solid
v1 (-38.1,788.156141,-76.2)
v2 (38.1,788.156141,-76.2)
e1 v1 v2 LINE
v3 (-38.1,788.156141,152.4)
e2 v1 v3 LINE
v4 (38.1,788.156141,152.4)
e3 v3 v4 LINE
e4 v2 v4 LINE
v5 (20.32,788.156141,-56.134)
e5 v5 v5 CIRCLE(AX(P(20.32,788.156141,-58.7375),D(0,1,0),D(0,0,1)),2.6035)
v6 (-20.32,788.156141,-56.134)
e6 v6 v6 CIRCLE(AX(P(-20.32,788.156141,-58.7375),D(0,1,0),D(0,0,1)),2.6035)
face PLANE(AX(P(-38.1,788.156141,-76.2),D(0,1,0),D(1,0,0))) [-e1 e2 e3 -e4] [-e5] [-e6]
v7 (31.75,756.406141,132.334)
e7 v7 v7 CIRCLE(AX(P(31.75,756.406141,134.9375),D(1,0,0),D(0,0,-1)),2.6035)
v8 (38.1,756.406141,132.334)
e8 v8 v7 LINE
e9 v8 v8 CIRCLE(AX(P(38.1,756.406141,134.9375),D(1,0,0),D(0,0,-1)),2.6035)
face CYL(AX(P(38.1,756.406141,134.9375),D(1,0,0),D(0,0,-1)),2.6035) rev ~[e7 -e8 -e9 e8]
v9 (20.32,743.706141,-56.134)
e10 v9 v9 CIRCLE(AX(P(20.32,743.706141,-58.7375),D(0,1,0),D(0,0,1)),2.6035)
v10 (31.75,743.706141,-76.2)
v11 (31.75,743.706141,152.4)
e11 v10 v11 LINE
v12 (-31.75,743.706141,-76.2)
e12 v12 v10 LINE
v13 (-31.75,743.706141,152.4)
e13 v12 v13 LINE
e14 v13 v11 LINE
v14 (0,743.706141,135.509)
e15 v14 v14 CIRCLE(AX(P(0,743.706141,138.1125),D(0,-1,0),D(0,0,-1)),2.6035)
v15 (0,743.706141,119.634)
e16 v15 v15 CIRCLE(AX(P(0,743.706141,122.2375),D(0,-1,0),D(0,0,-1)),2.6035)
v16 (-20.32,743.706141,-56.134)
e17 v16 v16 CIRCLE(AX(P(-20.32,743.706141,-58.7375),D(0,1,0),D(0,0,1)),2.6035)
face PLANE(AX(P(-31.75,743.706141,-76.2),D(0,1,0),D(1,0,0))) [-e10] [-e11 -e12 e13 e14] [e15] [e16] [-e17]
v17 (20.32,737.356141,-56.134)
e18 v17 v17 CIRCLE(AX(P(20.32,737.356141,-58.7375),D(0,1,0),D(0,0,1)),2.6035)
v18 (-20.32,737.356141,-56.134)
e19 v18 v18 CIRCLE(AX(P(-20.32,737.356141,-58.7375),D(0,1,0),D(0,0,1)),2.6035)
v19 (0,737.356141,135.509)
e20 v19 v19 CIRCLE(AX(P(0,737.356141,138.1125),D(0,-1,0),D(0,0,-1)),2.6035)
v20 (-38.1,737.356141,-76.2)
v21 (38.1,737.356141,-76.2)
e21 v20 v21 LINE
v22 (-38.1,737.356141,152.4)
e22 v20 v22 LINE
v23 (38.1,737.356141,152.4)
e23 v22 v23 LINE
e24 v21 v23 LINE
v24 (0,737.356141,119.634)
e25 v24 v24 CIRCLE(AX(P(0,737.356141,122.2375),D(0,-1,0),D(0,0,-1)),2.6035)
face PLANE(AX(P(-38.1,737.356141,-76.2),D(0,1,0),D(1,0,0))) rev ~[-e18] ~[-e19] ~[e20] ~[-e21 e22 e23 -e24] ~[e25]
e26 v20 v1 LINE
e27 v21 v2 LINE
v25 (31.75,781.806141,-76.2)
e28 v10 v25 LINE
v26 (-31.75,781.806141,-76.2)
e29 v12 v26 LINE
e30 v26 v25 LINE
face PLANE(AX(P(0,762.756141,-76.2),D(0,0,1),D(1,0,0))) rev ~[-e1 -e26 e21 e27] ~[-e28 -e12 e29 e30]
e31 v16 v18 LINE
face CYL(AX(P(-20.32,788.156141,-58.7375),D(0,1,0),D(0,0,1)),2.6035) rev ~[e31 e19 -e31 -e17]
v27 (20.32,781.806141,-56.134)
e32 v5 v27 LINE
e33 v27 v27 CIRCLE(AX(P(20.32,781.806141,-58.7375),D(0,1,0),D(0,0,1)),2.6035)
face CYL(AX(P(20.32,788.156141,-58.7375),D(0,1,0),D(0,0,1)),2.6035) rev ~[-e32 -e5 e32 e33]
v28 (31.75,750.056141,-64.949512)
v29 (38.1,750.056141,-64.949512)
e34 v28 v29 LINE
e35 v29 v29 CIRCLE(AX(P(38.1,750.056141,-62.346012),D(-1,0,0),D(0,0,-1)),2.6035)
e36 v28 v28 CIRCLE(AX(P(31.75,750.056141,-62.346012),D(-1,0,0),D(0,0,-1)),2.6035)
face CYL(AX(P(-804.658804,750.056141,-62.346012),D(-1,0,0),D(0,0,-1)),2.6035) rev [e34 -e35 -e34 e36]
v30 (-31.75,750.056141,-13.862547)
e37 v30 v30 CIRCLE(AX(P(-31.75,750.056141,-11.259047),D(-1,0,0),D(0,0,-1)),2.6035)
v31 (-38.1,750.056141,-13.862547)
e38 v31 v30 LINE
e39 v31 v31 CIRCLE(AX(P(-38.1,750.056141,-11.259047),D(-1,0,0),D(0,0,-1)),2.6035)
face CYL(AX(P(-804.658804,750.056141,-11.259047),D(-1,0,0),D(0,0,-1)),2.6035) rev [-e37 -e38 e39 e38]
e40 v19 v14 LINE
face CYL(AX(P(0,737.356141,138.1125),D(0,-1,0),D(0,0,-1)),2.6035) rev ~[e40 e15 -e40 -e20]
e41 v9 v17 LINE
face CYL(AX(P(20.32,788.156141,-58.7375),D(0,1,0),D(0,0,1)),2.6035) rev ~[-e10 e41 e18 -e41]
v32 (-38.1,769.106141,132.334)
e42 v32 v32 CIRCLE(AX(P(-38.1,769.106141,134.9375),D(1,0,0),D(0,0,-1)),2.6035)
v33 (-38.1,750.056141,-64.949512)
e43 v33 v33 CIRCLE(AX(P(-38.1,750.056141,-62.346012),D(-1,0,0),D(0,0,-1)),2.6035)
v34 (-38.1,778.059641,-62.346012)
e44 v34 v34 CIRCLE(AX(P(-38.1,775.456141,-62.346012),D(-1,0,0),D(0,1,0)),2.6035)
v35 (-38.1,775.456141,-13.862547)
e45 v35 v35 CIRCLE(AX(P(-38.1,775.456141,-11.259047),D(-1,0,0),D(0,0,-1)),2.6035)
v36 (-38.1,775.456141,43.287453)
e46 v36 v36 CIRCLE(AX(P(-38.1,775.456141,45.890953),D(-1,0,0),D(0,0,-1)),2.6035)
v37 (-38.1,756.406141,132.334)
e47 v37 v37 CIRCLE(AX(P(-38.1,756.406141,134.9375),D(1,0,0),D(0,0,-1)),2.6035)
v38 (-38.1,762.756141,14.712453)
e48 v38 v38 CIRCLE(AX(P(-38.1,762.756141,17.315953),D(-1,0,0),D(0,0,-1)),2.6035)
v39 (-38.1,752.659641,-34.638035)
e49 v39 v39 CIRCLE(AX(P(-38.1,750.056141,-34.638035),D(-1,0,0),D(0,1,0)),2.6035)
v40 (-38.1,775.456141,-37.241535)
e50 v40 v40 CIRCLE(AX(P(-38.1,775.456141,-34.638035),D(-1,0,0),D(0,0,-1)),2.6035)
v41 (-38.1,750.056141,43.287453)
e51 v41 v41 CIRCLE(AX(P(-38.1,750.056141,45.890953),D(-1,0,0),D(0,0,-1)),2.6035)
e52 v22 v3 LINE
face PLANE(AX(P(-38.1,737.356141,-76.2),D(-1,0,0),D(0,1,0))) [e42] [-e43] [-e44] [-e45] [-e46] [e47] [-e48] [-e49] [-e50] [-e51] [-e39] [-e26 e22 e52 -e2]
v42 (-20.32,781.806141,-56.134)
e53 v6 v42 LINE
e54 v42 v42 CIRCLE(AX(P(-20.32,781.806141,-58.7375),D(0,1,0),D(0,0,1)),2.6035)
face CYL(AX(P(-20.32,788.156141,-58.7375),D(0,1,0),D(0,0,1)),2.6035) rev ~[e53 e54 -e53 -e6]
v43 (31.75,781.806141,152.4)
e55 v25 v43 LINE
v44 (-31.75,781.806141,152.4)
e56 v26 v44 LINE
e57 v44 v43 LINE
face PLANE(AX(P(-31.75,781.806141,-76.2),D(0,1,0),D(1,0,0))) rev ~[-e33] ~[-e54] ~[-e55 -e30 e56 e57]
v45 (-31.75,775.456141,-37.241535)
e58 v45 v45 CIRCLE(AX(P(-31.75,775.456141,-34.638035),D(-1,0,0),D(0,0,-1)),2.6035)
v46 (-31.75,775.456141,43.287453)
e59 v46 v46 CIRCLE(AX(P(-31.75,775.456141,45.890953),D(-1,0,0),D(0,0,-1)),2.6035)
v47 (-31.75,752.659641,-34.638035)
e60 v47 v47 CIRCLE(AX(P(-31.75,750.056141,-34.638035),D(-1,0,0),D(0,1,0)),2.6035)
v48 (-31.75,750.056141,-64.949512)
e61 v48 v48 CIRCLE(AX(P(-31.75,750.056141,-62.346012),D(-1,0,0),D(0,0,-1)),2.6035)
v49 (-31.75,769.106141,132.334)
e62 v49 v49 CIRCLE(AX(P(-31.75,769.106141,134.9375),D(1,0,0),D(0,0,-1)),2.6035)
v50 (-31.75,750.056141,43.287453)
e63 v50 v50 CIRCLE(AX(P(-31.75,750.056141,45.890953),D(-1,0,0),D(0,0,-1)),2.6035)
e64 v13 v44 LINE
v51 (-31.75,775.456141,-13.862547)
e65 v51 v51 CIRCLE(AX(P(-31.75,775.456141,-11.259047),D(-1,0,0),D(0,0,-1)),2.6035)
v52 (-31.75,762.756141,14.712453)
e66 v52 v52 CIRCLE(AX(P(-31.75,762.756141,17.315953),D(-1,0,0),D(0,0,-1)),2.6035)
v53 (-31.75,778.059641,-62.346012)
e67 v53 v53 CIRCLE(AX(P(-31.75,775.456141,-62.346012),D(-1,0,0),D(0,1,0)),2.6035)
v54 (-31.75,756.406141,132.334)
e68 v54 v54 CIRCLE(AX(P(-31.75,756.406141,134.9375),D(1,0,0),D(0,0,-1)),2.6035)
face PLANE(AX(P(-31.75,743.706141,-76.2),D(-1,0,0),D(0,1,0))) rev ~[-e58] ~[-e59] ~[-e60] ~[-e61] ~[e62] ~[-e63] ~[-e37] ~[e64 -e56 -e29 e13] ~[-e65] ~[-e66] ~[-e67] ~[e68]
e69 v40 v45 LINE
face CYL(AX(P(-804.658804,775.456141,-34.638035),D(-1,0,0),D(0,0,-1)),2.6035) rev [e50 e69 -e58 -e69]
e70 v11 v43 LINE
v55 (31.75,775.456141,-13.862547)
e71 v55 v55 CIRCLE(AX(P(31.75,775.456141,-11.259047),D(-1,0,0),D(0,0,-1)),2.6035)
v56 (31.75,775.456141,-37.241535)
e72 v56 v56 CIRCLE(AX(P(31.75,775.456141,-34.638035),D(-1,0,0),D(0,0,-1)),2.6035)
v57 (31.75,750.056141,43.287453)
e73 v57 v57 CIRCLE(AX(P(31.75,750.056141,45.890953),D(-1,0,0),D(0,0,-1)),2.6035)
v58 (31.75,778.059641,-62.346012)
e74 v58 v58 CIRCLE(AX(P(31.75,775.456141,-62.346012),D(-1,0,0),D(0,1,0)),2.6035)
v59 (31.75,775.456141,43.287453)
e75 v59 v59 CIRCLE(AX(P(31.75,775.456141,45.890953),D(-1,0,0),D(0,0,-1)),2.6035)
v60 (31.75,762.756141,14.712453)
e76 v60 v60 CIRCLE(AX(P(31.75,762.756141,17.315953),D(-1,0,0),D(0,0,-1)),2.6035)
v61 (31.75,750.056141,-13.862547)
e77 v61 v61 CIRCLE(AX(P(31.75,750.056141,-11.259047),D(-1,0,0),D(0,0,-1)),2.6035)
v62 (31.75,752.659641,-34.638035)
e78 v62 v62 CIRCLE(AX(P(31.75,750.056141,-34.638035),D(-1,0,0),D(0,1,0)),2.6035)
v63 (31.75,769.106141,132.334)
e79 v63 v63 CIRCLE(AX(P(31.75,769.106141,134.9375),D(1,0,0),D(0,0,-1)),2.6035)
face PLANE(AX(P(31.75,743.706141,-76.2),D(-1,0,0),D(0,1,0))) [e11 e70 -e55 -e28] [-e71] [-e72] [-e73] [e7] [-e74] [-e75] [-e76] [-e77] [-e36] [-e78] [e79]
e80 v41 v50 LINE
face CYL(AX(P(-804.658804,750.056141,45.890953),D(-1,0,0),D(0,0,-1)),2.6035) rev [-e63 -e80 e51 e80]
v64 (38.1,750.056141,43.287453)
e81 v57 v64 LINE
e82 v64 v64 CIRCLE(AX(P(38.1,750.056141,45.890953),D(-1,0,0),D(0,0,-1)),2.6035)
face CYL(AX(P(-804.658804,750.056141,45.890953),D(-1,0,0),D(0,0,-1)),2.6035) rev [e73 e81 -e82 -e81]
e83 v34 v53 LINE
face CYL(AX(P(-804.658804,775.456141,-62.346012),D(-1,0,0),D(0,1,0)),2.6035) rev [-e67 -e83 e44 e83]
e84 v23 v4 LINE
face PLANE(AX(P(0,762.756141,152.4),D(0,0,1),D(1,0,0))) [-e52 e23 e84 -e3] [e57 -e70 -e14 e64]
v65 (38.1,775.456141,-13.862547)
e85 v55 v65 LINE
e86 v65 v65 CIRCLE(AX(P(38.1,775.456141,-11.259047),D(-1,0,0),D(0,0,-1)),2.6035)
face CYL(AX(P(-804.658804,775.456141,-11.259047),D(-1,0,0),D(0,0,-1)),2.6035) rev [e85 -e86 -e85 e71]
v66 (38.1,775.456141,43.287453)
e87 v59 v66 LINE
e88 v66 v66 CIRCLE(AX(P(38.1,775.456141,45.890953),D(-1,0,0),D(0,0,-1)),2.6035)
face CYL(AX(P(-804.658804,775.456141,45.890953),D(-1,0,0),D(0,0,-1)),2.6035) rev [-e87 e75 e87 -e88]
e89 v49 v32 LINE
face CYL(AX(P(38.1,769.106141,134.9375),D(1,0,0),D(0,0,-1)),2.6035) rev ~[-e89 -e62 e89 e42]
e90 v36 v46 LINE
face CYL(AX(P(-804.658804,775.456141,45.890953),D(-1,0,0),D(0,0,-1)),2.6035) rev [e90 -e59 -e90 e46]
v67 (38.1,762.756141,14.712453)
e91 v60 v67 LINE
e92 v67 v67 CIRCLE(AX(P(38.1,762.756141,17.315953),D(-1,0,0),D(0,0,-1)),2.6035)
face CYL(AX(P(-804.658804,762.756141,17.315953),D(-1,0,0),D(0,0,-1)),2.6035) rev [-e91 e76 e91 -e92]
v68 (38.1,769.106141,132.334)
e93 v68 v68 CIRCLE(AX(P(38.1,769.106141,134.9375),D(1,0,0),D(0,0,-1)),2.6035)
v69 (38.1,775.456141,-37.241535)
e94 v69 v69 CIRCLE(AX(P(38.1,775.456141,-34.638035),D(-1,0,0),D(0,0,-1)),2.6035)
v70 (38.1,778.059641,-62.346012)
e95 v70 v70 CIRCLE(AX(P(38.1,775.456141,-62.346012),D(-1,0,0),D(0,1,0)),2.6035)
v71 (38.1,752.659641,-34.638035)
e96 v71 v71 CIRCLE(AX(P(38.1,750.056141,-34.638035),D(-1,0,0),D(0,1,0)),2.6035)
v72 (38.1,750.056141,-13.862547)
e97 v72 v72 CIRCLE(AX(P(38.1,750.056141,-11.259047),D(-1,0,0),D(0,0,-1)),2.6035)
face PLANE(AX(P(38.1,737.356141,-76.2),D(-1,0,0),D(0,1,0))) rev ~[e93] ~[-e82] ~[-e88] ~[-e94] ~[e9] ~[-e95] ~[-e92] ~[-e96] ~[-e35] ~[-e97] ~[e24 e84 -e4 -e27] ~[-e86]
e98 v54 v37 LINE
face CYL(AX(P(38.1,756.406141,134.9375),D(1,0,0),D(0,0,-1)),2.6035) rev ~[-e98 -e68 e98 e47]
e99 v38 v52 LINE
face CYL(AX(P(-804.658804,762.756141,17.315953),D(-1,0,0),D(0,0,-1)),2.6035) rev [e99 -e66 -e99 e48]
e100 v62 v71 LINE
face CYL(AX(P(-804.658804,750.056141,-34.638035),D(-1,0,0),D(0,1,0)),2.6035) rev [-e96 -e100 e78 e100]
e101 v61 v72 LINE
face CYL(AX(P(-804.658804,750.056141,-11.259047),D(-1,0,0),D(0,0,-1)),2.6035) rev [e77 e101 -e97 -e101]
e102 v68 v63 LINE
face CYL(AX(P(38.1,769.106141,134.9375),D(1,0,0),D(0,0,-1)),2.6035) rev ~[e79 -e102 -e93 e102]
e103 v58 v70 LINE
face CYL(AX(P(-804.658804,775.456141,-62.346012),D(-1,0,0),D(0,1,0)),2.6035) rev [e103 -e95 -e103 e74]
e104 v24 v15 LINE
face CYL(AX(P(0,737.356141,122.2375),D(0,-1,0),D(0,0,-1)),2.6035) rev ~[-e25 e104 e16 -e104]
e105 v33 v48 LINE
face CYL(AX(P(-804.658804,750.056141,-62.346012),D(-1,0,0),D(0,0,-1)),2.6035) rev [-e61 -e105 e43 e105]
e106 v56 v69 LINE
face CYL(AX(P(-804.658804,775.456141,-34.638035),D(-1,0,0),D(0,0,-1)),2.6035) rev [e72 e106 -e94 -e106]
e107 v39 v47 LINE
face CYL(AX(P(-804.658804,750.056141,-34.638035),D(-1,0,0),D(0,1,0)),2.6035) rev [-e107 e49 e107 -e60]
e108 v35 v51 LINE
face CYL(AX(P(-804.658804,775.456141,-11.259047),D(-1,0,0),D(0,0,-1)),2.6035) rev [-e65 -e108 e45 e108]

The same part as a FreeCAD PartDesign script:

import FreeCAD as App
import Part
import Sketcher

V = App.Vector
Q = App.Units.Quantity

doc = App.newDocument("Part")
body = doc.addObject("PartDesign::Body", "Body")

# Sketch on XY plane
sketch1 = body.newObject("Sketcher::SketchObject", "Sketch")
sketch1.AttachmentSupport = (doc.getObject("XY_Plane"), [""])
sketch1.MapMode = "FlatFace"
sketch1.addGeometry([
    Part.LineSegment(V(-38, 788, 0), V(-38, 737, 0)),  # 0
    Part.LineSegment(V(-38, 737, 0), V(38, 737, 0)),  # 1
    Part.LineSegment(V(38, 737, 0), V(38, 788, 0)),  # 2
    Part.LineSegment(V(38, 788, 0), V(-38, 788, 0)),  # 3
    Part.LineSegment(V(32, 744, 0), V(-32, 744, 0)),  # 4
    Part.LineSegment(V(-32, 744, 0), V(-32, 782, 0)),  # 5
    Part.LineSegment(V(-32, 782, 0), V(32, 782, 0)),  # 6
    Part.LineSegment(V(32, 782, 0), V(32, 744, 0)),  # 7
], False)
sketch1.addConstraint([
    Sketcher.Constraint("Coincident", 0, 2, 1, 1),
    Sketcher.Constraint("Coincident", 1, 2, 2, 1),
    Sketcher.Constraint("Coincident", 2, 2, 3, 1),
    Sketcher.Constraint("Coincident", 3, 2, 0, 1),
    Sketcher.Constraint("Coincident", 4, 2, 5, 1),
    Sketcher.Constraint("Coincident", 5, 2, 6, 1),
    Sketcher.Constraint("Coincident", 6, 2, 7, 1),
    Sketcher.Constraint("Coincident", 7, 2, 4, 1),
    Sketcher.Constraint("Vertical", 0),
    Sketcher.Constraint("Horizontal", 1),
    Sketcher.Constraint("Vertical", 2),
    Sketcher.Constraint("Horizontal", 3),
    Sketcher.Constraint("Horizontal", 4),
    Sketcher.Constraint("Vertical", 5),
    Sketcher.Constraint("Horizontal", 6),
    Sketcher.Constraint("Vertical", 7),
    Sketcher.Constraint("DistanceX", 1, 1, 1, 2, Q("3 in")),
    Sketcher.Constraint("DistanceY", 0, 2, 0, 1, Q("2 in")),
    Sketcher.Constraint("DistanceX", 4, 2, 4, 1, Q("2.5 in")),
    Sketcher.Constraint("DistanceY", 5, 1, 5, 2, Q("1.5 in")),
    Sketcher.Constraint("DistanceX", 0, 2, -1, 1, Q("1.5 in")),
    Sketcher.Constraint("DistanceX", 4, 2, -1, 1, Q("1.25 in")),
    Sketcher.Constraint("DistanceY", 0, 2, 4, 2, Q("0.25 in")),
    Sketcher.Constraint("DistanceY", -1, 1, 0, 2, Q("737.356141 mm")),
])
pad1 = body.newObject("PartDesign::Pad", "Pad")
pad1.Profile = sketch1
pad1.Type = "TwoLengths"
pad1.Length = Q("6 in")
pad1.Length2 = Q("3 in")

# Sketch on YZ plane
sketch2 = body.newObject("Sketcher::SketchObject", "Sketch001")
sketch2.AttachmentSupport = (doc.getObject("YZ_Plane"), [""])
sketch2.MapMode = "FlatFace"
sketch2.addGeometry([
    Part.Circle(V(750.1, -62.3, 0), V(0, 0, 1), 2.6),  # 0
    Part.Circle(V(750.1, -34.6, 0), V(0, 0, 1), 2.6),  # 1
    Part.Circle(V(775.5, -34.6, 0), V(0, 0, 1), 2.6),  # 2
    Part.Circle(V(775.5, -62.3, 0), V(0, 0, 1), 2.6),  # 3
    Part.Circle(V(750.1, -11.3, 0), V(0, 0, 1), 2.6),  # 4
    Part.Circle(V(775.5, -11.3, 0), V(0, 0, 1), 2.6),  # 5
    Part.Circle(V(762.8, 17.3, 0), V(0, 0, 1), 2.6),  # 6
    Part.Circle(V(775.5, 45.9, 0), V(0, 0, 1), 2.6),  # 7
    Part.Circle(V(750.1, 45.9, 0), V(0, 0, 1), 2.6),  # 8
], False)
sketch2.addConstraint([
    Sketcher.Constraint("Equal", 0, 1),
    Sketcher.Constraint("Equal", 1, 2),
    Sketcher.Constraint("Equal", 2, 3),
    Sketcher.Constraint("Equal", 3, 4),
    Sketcher.Constraint("Equal", 4, 5),
    Sketcher.Constraint("Equal", 5, 6),
    Sketcher.Constraint("Equal", 6, 7),
    Sketcher.Constraint("Equal", 7, 8),
    Sketcher.Constraint("Horizontal", 1, 3, 2, 3),
    Sketcher.Constraint("Horizontal", 0, 3, 3, 3),
    Sketcher.Constraint("Horizontal", 4, 3, 5, 3),
    Sketcher.Constraint("Horizontal", 7, 3, 8, 3),
    Sketcher.Constraint("Vertical", 0, 3, 1, 3),
    Sketcher.Constraint("Vertical", 2, 3, 3, 3),
    Sketcher.Constraint("Vertical", 1, 3, 4, 3),
    Sketcher.Constraint("Vertical", 3, 3, 5, 3),
    Sketcher.Constraint("Vertical", 5, 3, 7, 3),
    Sketcher.Constraint("Vertical", 4, 3, 8, 3),
    Sketcher.Constraint("Diameter", 0, Q("0.205 in")),
    Sketcher.Constraint("DistanceX", 1, 3, 2, 3, Q("1 in")),
    Sketcher.Constraint("DistanceX", 4, 3, 6, 3, Q("0.5 in")),
    Sketcher.Constraint("DistanceY", 5, 3, 7, 3, Q("2.25 in")),
    Sketcher.Constraint("DistanceY", 4, 3, 6, 3, Q("1.125 in")),
    Sketcher.Constraint("DistanceX", -1, 1, 0, 3, Q("750.056141 mm")),
    Sketcher.Constraint("DistanceY", 0, 3, -1, 1, Q("62.346012 mm")),
    Sketcher.Constraint("DistanceY", 1, 3, 4, 3, Q("23.378988 mm")),
    Sketcher.Constraint("DistanceY", 1, 3, -1, 1, Q("34.638035 mm")),
])
pocket1 = body.newObject("PartDesign::Pocket", "Pocket")
pocket1.Profile = sketch2
pocket1.Type = "ThroughAll"
pocket1.Midplane = True

# Sketch on YZ plane
sketch3 = body.newObject("Sketcher::SketchObject", "Sketch002")
sketch3.AttachmentSupport = (doc.getObject("YZ_Plane"), [""])
sketch3.MapMode = "FlatFace"
sketch3.AttachmentOffset = App.Placement(V(0, 0, 1.5 * 25.4), App.Rotation())
sketch3.addGeometry([
    Part.Circle(V(769.1, 134.9, 0), V(0, 0, 1), 2.6),
    Part.Circle(V(756.4, 134.9, 0), V(0, 0, 1), 2.6),
], False)
sketch3.addConstraint([
    Sketcher.Constraint("Equal", 0, 1),
    Sketcher.Constraint("Horizontal", 0, 3, 1, 3),
    Sketcher.Constraint("Diameter", 0, Q("0.205 in")),
    Sketcher.Constraint("DistanceX", 1, 3, 0, 3, Q("0.5 in")),
    Sketcher.Constraint("DistanceY", -1, 1, 0, 3, Q("5.3125 in")),
    Sketcher.Constraint("DistanceX", -1, 1, 0, 3, Q("769.106141 mm")),
])
pocket2 = body.newObject("PartDesign::Pocket", "Pocket001")
pocket2.Profile = sketch3
pocket2.Type = "ThroughAll"

# Sketch on XZ plane
sketch4 = body.newObject("Sketcher::SketchObject", "Sketch003")
sketch4.AttachmentSupport = (doc.getObject("XZ_Plane"), [""])
sketch4.MapMode = "FlatFace"
sketch4.AttachmentOffset = App.Placement(V(0, 0, -788.156141), App.Rotation())
sketch4.addGeometry([
    Part.Circle(V(20.3, -58.7, 0), V(0, 0, 1), 2.6),
    Part.Circle(V(-20.3, -58.7, 0), V(0, 0, 1), 2.6),
], False)
sketch4.addConstraint([
    Sketcher.Constraint("Equal", 0, 1),
    Sketcher.Constraint("Symmetric", 0, 3, 1, 3, -2),
    Sketcher.Constraint("Diameter", 0, Q("0.205 in")),
    Sketcher.Constraint("DistanceX", -1, 1, 0, 3, Q("0.8 in")),
    Sketcher.Constraint("DistanceY", 0, 3, -1, 1, Q("2.3125 in")),
])
pocket3 = body.newObject("PartDesign::Pocket", "Pocket002")
pocket3.Profile = sketch4
pocket3.Type = "ThroughAll"
pocket3.Reversed = True

# Sketch on XZ plane
sketch5 = body.newObject("Sketcher::SketchObject", "Sketch004")
sketch5.AttachmentSupport = (doc.getObject("XZ_Plane"), [""])
sketch5.MapMode = "FlatFace"
sketch5.AttachmentOffset = App.Placement(V(0, 0, -737.356141), App.Rotation())
sketch5.addGeometry(Part.Circle(V(0, 138.1, 0), V(0, 0, 1), 2.6), False)
sketch5.addConstraint([
    Sketcher.Constraint("PointOnObject", 0, 3, -2),
    Sketcher.Constraint("Diameter", 0, Q("0.205 in")),
    Sketcher.Constraint("DistanceY", -1, 1, 0, 3, Q("5.4375 in")),
])
pocket4 = body.newObject("PartDesign::Pocket", "Pocket003")
pocket4.Profile = sketch5
pocket4.Type = "UpToFirst"

# Sketch on XZ plane
sketch6 = body.newObject("Sketcher::SketchObject", "Sketch005")
sketch6.AttachmentSupport = (doc.getObject("XZ_Plane"), [""])
sketch6.MapMode = "FlatFace"
sketch6.AttachmentOffset = App.Placement(V(0, 0, -737.356141), App.Rotation())
sketch6.addGeometry(Part.Circle(V(0, 122.2, 0), V(0, 0, 1), 2.6), False)
sketch6.addConstraint([
    Sketcher.Constraint("PointOnObject", 0, 3, -2),
    Sketcher.Constraint("Diameter", 0, Q("0.205 in")),
    Sketcher.Constraint("DistanceY", -1, 1, 0, 3, Q("4.8125 in")),
])
pocket5 = body.newObject("PartDesign::Pocket", "Pocket004")
pocket5.Profile = sketch6
pocket5.Type = "UpToFirst"

doc.recompute()
